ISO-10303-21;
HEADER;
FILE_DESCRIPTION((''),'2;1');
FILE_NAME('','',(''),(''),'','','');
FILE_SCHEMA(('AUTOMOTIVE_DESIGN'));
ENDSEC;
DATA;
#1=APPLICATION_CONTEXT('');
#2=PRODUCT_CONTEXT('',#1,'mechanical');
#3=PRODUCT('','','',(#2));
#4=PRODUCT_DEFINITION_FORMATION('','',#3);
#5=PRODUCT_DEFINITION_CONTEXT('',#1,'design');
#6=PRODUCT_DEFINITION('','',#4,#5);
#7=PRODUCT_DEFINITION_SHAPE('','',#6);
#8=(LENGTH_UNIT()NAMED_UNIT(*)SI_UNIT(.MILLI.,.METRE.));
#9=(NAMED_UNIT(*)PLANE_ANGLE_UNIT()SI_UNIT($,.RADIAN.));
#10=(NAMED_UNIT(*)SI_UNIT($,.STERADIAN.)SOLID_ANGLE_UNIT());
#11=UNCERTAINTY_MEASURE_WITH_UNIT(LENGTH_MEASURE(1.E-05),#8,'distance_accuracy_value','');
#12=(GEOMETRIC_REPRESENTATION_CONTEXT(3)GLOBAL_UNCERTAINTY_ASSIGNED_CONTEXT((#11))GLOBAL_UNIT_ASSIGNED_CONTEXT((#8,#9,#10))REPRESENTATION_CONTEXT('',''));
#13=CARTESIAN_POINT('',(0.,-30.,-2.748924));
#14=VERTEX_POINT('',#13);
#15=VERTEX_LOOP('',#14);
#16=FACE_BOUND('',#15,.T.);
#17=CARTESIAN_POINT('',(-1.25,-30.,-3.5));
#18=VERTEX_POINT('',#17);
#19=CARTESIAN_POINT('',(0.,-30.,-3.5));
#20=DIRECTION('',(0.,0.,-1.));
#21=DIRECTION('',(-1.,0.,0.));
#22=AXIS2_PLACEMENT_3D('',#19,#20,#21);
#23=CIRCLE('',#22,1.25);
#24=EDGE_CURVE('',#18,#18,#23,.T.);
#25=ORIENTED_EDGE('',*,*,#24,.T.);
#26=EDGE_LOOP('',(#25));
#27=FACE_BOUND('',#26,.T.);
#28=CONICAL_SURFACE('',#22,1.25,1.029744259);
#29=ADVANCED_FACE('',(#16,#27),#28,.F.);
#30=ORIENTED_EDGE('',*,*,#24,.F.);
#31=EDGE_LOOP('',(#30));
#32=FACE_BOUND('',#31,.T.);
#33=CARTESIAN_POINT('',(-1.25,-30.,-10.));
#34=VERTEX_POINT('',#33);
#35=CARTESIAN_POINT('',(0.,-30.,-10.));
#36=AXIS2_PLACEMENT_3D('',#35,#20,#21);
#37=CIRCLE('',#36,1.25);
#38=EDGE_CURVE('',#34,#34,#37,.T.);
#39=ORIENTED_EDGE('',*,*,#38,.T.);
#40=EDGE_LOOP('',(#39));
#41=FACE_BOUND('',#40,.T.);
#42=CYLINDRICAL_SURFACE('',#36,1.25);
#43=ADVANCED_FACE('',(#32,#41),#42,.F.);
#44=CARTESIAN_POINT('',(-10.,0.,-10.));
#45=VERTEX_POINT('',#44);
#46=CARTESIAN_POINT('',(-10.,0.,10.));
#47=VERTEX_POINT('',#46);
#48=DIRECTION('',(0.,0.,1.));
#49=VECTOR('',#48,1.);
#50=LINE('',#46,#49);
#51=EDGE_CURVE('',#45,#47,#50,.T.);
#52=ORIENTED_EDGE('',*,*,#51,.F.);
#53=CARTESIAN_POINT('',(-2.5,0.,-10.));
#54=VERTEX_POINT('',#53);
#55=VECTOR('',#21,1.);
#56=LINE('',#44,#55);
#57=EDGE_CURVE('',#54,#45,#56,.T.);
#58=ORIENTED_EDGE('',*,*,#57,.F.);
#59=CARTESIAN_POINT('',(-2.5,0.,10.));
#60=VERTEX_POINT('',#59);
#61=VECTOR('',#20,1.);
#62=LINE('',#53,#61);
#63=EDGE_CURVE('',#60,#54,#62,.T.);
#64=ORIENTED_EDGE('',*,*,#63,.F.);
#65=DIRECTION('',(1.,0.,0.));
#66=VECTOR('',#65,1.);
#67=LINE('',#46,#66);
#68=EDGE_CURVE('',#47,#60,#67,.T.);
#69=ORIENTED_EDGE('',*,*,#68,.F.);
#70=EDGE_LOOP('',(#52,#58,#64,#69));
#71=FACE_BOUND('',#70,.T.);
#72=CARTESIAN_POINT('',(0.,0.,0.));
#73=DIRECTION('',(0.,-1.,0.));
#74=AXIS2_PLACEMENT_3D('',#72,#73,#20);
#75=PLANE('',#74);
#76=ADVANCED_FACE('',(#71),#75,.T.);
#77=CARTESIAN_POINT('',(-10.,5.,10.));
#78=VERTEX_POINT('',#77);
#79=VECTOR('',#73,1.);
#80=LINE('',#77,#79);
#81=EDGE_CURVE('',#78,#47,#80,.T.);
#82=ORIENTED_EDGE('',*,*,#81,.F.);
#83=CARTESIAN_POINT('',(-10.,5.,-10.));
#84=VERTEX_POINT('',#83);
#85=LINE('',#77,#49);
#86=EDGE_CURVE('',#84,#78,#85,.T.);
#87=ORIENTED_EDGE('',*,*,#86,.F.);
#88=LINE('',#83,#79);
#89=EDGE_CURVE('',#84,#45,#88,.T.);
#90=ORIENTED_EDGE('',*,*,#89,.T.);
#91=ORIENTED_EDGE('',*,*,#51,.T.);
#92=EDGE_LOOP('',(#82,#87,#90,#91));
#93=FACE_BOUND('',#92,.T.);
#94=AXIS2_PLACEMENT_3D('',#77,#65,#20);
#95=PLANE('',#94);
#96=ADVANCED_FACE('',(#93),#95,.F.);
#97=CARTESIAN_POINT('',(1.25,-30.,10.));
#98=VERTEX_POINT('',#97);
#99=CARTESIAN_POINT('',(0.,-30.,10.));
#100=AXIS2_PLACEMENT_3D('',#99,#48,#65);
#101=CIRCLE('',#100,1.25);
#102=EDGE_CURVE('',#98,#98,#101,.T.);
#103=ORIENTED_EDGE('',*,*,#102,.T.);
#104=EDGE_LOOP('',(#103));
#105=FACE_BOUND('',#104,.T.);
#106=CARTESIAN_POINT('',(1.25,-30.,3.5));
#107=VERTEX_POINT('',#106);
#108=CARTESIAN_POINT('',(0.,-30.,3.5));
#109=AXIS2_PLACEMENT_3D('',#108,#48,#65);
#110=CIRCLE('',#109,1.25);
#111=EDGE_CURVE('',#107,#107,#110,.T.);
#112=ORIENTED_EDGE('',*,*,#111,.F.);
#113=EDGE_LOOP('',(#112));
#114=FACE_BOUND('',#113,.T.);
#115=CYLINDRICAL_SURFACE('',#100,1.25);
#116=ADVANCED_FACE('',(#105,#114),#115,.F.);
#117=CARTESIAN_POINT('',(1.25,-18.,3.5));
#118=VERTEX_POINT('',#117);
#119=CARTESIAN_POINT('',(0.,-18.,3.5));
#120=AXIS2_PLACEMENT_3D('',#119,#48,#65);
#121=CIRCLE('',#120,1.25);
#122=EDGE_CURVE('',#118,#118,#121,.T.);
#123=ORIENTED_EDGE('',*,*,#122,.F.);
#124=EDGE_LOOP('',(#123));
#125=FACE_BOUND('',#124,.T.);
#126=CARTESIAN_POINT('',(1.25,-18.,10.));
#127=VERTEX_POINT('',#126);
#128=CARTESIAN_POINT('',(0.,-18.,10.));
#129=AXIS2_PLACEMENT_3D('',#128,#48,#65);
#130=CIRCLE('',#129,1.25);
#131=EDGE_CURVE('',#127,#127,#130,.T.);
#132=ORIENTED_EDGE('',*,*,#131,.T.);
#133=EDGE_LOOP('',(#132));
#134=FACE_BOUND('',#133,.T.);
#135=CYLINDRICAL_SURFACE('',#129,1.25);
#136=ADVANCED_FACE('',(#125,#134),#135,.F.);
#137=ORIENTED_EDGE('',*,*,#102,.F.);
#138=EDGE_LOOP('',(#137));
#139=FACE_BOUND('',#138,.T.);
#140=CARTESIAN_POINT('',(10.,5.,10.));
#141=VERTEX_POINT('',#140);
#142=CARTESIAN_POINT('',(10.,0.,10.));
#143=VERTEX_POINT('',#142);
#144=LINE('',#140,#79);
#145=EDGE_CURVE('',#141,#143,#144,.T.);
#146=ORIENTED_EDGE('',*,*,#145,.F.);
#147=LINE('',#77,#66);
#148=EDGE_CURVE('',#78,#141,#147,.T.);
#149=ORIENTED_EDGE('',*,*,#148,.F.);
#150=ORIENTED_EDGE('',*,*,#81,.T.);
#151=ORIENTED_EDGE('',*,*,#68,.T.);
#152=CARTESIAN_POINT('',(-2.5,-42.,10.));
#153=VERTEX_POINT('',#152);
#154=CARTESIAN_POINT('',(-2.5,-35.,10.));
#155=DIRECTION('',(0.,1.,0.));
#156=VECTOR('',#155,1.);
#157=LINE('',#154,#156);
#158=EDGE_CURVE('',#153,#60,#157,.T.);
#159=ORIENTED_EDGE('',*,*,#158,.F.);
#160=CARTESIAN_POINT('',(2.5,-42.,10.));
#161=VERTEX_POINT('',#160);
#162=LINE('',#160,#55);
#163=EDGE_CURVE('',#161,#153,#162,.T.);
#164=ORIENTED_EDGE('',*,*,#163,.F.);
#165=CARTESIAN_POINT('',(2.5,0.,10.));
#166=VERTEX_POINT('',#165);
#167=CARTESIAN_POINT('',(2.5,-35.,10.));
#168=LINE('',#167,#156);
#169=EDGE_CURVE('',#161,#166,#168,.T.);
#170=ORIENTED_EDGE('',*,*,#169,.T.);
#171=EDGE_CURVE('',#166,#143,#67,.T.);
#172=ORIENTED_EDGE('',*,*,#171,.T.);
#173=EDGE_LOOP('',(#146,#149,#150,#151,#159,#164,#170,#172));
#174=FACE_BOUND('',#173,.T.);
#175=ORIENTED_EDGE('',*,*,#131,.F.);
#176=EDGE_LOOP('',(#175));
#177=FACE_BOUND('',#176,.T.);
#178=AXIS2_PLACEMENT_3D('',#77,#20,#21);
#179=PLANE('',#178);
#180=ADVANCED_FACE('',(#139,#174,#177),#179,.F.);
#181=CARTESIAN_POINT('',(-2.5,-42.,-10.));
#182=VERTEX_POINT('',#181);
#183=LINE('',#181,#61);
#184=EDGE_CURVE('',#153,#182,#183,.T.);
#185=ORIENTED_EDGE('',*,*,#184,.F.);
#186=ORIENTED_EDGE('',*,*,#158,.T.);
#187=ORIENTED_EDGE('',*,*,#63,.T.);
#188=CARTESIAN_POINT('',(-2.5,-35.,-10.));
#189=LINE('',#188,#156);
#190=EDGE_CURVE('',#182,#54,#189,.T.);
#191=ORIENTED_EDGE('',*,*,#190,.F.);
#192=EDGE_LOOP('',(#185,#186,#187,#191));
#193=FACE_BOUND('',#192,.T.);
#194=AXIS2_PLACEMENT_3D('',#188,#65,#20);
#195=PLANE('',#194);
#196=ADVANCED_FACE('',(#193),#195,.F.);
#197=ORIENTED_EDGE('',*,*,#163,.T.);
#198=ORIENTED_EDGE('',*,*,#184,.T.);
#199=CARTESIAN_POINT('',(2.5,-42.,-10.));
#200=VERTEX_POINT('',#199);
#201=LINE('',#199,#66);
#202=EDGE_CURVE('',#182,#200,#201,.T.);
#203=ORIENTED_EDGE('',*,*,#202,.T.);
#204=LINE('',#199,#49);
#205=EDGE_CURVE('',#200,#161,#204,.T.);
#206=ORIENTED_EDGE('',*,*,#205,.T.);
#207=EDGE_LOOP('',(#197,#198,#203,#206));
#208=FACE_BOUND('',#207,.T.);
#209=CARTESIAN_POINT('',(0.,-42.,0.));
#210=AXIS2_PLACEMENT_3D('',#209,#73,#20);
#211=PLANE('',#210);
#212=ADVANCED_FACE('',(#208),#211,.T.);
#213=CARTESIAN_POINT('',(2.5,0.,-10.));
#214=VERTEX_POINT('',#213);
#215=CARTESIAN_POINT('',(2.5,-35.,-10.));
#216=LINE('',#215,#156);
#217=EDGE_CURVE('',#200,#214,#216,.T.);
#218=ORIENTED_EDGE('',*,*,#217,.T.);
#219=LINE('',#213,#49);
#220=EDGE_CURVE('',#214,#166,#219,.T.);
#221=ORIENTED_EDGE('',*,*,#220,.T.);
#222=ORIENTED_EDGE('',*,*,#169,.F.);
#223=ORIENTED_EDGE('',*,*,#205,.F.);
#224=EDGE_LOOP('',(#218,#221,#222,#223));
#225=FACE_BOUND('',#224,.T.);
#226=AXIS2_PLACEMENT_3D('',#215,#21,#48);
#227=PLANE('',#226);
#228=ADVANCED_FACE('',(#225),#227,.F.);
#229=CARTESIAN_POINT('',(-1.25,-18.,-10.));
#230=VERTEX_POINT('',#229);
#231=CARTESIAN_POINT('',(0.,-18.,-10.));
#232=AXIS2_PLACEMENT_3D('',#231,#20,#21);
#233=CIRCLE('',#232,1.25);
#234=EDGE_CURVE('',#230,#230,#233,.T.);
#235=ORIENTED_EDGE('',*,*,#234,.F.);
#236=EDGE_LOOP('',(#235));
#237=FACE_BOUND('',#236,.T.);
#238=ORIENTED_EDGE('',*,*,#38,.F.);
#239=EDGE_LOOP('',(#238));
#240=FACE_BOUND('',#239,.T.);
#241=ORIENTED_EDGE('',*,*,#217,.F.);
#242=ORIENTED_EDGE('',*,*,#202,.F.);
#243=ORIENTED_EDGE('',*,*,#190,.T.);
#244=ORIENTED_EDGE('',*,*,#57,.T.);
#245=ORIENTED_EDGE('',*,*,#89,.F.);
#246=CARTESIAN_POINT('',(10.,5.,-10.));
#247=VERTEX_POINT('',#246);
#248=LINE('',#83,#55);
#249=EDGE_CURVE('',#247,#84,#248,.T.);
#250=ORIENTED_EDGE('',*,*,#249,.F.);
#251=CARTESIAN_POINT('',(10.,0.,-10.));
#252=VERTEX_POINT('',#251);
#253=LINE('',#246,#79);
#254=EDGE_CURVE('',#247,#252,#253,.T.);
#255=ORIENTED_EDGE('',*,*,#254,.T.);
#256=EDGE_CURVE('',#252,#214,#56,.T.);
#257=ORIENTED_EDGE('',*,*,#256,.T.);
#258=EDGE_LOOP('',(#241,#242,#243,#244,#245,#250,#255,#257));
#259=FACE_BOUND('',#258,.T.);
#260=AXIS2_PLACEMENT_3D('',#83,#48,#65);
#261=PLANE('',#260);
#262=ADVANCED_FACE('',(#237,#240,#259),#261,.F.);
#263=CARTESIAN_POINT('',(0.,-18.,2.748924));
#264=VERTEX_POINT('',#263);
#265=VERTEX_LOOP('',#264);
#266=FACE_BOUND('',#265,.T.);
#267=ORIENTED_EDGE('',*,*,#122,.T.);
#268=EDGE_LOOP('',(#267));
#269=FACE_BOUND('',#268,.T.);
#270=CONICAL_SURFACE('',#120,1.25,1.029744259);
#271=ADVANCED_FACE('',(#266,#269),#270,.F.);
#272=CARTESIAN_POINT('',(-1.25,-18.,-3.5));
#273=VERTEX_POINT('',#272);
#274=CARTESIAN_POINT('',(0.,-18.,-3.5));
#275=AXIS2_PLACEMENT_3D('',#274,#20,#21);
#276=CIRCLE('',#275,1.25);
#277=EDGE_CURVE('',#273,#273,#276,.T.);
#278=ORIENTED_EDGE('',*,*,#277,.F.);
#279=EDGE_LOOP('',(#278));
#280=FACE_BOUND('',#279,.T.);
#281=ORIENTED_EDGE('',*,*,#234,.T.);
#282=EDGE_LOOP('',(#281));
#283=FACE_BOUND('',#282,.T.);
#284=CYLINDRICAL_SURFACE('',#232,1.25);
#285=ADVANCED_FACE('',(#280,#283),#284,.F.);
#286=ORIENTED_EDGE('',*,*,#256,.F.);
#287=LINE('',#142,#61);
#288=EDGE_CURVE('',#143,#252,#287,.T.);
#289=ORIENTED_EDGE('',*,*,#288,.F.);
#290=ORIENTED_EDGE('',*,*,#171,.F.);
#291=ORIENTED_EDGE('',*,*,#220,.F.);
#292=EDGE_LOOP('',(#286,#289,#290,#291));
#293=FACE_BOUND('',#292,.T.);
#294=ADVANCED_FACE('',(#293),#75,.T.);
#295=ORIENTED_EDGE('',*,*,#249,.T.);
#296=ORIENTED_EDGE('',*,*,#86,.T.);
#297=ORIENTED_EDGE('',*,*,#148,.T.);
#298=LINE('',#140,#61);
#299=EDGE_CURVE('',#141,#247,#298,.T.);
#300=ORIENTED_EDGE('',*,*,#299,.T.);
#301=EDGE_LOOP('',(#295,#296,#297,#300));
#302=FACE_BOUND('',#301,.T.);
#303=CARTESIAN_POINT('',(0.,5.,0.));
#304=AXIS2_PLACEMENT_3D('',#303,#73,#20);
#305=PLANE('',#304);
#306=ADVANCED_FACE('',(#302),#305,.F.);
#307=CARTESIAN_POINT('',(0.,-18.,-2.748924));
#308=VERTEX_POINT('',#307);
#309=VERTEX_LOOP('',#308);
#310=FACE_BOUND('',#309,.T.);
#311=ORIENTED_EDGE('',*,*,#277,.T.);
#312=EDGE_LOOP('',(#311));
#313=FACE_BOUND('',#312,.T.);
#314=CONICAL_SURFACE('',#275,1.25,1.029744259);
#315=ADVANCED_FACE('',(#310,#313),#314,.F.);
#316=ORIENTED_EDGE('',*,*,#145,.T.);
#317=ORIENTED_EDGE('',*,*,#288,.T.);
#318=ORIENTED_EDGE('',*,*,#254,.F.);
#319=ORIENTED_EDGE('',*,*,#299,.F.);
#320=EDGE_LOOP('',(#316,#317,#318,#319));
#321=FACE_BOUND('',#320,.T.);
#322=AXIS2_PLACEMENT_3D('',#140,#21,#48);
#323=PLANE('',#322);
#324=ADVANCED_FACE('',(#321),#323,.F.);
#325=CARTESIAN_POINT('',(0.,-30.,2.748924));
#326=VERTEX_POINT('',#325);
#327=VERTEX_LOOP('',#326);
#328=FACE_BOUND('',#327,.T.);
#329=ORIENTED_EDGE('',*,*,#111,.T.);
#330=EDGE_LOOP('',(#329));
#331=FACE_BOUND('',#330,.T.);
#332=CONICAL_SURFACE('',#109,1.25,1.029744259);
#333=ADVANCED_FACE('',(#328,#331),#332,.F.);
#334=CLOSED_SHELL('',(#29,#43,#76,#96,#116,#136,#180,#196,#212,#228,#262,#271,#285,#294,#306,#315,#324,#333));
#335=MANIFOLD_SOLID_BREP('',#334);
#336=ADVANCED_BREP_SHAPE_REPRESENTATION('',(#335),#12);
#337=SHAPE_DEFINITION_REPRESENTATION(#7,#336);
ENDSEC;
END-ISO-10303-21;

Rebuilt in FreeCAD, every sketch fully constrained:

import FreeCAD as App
import Part
import Sketcher

V = App.Vector
Q = App.Units.Quantity

doc = App.newDocument("Part")
body = doc.addObject("PartDesign::Body", "Body")

# Sketch on XZ plane
sketch1 = doc.addObject("Sketcher::SketchObject", "Sketch")
body.addObject(sketch1)
sketch1.AttachmentSupport = (doc.XZ_Plane, [""])
sketch1.MapMode = "FlatFace"
sketch1.addGeometry([
    Part.LineSegment(V(-10, -10, 0), V(-10, 10, 0)),
    Part.LineSegment(V(-10, 10, 0), V(10, 10, 0)),
    Part.LineSegment(V(10, 10, 0), V(10, -10, 0)),
    Part.LineSegment(V(10, -10, 0), V(-10, -10, 0)),
], False)
sketch1.addConstraint([
    Sketcher.Constraint("Coincident", 0, 2, 1, 1),
    Sketcher.Constraint("Coincident", 1, 2, 2, 1),
    Sketcher.Constraint("Coincident", 2, 2, 3, 1),
    Sketcher.Constraint("Coincident", 3, 2, 0, 1),
    Sketcher.Constraint("Vertical", 0),
    Sketcher.Constraint("Horizontal", 1),
    Sketcher.Constraint("Vertical", 2),
    Sketcher.Constraint("Horizontal", 3),
    Sketcher.Constraint("Symmetric", 0, 2, 2, 2, -1, 1),
    Sketcher.Constraint("Equal", 3, 0),
    Sketcher.Constraint("DistanceX", 1, 1, 1, 2, Q("20 mm")),
])
pad1 = doc.addObject("PartDesign::Pad", "Pad")
body.addObject(pad1)
pad1.Profile = sketch1
pad1.Length = 5
pad1.Reversed = True

# Sketch on XZ plane
sketch2 = doc.addObject("Sketcher::SketchObject", "Sketch001")
body.addObject(sketch2)
sketch2.AttachmentSupport = (doc.XZ_Plane, [""])
sketch2.MapMode = "FlatFace"
sketch2.addGeometry([
    Part.LineSegment(V(-2, 10, 0), V(-2, -10, 0)),
    Part.LineSegment(V(-2, -10, 0), V(2, -10, 0)),
    Part.LineSegment(V(2, -10, 0), V(2, 10, 0)),
    Part.LineSegment(V(2, 10, 0), V(-2, 10, 0)),
], False)
sketch2.addConstraint([
    Sketcher.Constraint("Coincident", 0, 2, 1, 1),
    Sketcher.Constraint("Coincident", 1, 2, 2, 1),
    Sketcher.Constraint("Coincident", 2, 2, 3, 1),
    Sketcher.Constraint("Coincident", 3, 2, 0, 1),
    Sketcher.Constraint("Vertical", 0),
    Sketcher.Constraint("Horizontal", 1),
    Sketcher.Constraint("Vertical", 2),
    Sketcher.Constraint("Horizontal", 3),
    Sketcher.Constraint("Symmetric", 0, 2, 2, 2, -1, 1),
    Sketcher.Constraint("DistanceX", 1, 1, 1, 2, Q("5 mm")),
    Sketcher.Constraint("DistanceY", 0, 2, 0, 1, Q("20 mm")),
])
pad2 = doc.addObject("PartDesign::Pad", "Pad001")
body.addObject(pad2)
pad2.Profile = sketch2
pad2.Length = 35

# Sketch on YZ plane
sketch3 = doc.addObject("Sketcher::SketchObject", "Sketch002")
body.addObject(sketch3)
sketch3.AttachmentSupport = (doc.YZ_Plane, [""])
sketch3.MapMode = "FlatFace"
sketch3.addGeometry([
    Part.LineSegment(V(-18, 2.7, 0), V(-18, 10, 0)),
    Part.LineSegment(V(-18, 10, 0), V(-19.2, 10, 0)),
    Part.LineSegment(V(-19.2, 10, 0), V(-19.2, 3.5, 0)),
    Part.LineSegment(V(-19.2, 3.5, 0), V(-18, 2.7, 0)),
], False)
sketch3.addGeometry(Part.LineSegment(V(-18, 10, 0), V(-18, 2.7, 0)), True)  # axis
sketch3.addConstraint([
    Sketcher.Constraint("Coincident", 0, 2, 1, 1),
    Sketcher.Constraint("Coincident", 1, 2, 2, 1),
    Sketcher.Constraint("Coincident", 2, 2, 3, 1),
    Sketcher.Constraint("Coincident", 3, 2, 0, 1),
    Sketcher.Constraint("Vertical", 0),
    Sketcher.Constraint("Horizontal", 1),
    Sketcher.Constraint("Vertical", 2),
    Sketcher.Constraint("Vertical", 4),
    Sketcher.Constraint("Coincident", 4, 1, 0, 2),
    Sketcher.Constraint("Equal", 0, 4),
    Sketcher.Constraint("Angle", 3, Q("-31 deg")),
    Sketcher.Constraint("DistanceY", 2, 2, 2, 1, Q("6.5 mm")),
    Sketcher.Constraint("DistanceX", 0, 2, -1, 1, Q("18 mm")),
    Sketcher.Constraint("DistanceY", -1, 1, 0, 2, Q("10 mm")),
    Sketcher.Constraint("DistanceX", 1, 2, 1, 1, Q("1.25 mm")),
])
groove = doc.addObject("PartDesign::Groove", "Groove")
body.addObject(groove)
groove.Profile = sketch3
groove.ReferenceAxis = (sketch3, ["Axis0"])
groove.Angle = 360
doc.recompute()

linearpattern = doc.addObject("PartDesign::LinearPattern", "LinearPattern")
body.addObject(linearpattern)
linearpattern.Originals = [groove]
linearpattern.Direction = (doc.Y_Axis, [""])
linearpattern.Mode = "offset"
linearpattern.Offset = 12
linearpattern.Occurrences = 2
linearpattern.Reversed = True
body.Tip = linearpattern
doc.recompute()

mirrored = doc.addObject("PartDesign::Mirrored", "Mirrored")
body.addObject(mirrored)
mirrored.Originals = [groove]
mirrored.MirrorPlane = (doc.XY_Plane, [""])
body.Tip = mirrored

# Sketch on YZ plane
sketch4 = doc.addObject("Sketcher::SketchObject", "Sketch003")
body.addObject(sketch4)
sketch4.AttachmentSupport = (doc.YZ_Plane, [""])
sketch4.MapMode = "FlatFace"
sketch4.addGeometry([
    Part.LineSegment(V(-30, -10, 0), V(-30, -2.7, 0)),
    Part.LineSegment(V(-30, -2.7, 0), V(-31.2, -3.5, 0)),
    Part.LineSegment(V(-31.2, -3.5, 0), V(-31.2, -10, 0)),
    Part.LineSegment(V(-31.2, -10, 0), V(-30, -10, 0)),
], False)
sketch4.addGeometry(Part.LineSegment(V(-30, -2.7, 0), V(-30, -10, 0)), True)  # axis
sketch4.addConstraint([
    Sketcher.Constraint("Coincident", 0, 2, 1, 1),
    Sketcher.Constraint("Coincident", 1, 2, 2, 1),
    Sketcher.Constraint("Coincident", 2, 2, 3, 1),
    Sketcher.Constraint("Coincident", 3, 2, 0, 1),
    Sketcher.Constraint("Vertical", 0),
    Sketcher.Constraint("Vertical", 2),
    Sketcher.Constraint("Horizontal", 3),
    Sketcher.Constraint("Vertical", 4),
    Sketcher.Constraint("Coincident", 4, 1, 0, 2),
    Sketcher.Constraint("Horizontal", 2, 2, 4, 2),
    Sketcher.Constraint("Angle", 1, Q("-149 deg")),
    Sketcher.Constraint("DistanceY", 2, 2, 2, 1, Q("6.5 mm")),
    Sketcher.Constraint("DistanceX", 0, 2, -1, 1, Q("30 mm")),
    Sketcher.Constraint("DistanceY", 2, 2, -1, 1, Q("10 mm")),
    Sketcher.Constraint("DistanceX", 3, 1, 3, 2, Q("1.25 mm")),
])
groove2 = doc.addObject("PartDesign::Groove", "Groove001")
body.addObject(groove2)
groove2.Profile = sketch4
groove2.ReferenceAxis = (sketch4, ["Axis0"])
groove2.Angle = 360

# Sketch on XZ plane
sketch5 = doc.addObject("Sketcher::SketchObject", "Sketch004")
body.addObject(sketch5)
sketch5.AttachmentSupport = (doc.XZ_Plane, [""])
sketch5.MapMode = "FlatFace"
sketch5.AttachmentOffset = App.Placement(V(0, 0, 35), App.Rotation())
sketch5.addGeometry([
    Part.LineSegment(V(-2, 10, 0), V(-2, -10, 0)),
    Part.LineSegment(V(-2, -10, 0), V(2, -10, 0)),
    Part.LineSegment(V(2, -10, 0), V(2, 10, 0)),
    Part.LineSegment(V(2, 10, 0), V(-2, 10, 0)),
], False)
sketch5.addConstraint([
    Sketcher.Constraint("Coincident", 0, 2, 1, 1),
    Sketcher.Constraint("Coincident", 1, 2, 2, 1),
    Sketcher.Constraint("Coincident", 2, 2, 3, 1),
    Sketcher.Constraint("Coincident", 3, 2, 0, 1),
    Sketcher.Constraint("Vertical", 0),
    Sketcher.Constraint("Horizontal", 1),
    Sketcher.Constraint("Vertical", 2),
    Sketcher.Constraint("Horizontal", 3),
    Sketcher.Constraint("Symmetric", 0, 2, 2, 2, -1, 1),
    Sketcher.Constraint("DistanceX", 1, 1, 1, 2, Q("5 mm")),
    Sketcher.Constraint("DistanceY", 0, 2, 0, 1, Q("20 mm")),
])
pad3 = doc.addObject("PartDesign::Pad", "Pad002")
body.addObject(pad3)
pad3.Profile = sketch5
pad3.Length = 7

doc.recompute()
